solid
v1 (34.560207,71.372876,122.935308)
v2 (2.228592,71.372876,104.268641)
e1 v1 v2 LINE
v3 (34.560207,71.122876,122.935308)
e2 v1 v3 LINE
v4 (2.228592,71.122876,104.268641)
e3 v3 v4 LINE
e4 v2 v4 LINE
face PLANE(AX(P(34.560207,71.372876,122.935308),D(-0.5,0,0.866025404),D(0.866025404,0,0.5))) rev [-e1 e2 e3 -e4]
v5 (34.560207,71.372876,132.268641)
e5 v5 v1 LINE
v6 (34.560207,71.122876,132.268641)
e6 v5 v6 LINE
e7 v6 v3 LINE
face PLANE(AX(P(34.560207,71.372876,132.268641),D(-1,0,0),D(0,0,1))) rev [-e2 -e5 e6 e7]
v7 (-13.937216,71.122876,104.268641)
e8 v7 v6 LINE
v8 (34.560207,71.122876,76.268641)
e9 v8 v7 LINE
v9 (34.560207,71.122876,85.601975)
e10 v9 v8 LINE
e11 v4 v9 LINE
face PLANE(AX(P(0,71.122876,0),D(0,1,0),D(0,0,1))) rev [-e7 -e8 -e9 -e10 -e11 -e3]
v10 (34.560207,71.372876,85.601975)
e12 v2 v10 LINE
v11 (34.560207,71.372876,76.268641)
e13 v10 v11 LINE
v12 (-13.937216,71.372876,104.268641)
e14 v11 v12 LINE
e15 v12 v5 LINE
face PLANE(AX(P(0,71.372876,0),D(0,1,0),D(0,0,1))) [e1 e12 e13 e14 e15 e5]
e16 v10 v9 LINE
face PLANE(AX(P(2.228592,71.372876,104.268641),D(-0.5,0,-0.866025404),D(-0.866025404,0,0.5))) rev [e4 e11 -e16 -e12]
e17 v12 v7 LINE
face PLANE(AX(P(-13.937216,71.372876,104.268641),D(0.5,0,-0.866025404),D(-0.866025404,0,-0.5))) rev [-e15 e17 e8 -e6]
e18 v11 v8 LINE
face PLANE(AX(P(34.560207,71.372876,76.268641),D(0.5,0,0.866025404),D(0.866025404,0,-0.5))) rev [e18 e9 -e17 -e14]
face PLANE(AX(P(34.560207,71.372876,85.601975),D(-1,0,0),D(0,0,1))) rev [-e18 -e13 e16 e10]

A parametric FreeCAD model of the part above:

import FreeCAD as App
import Part
import Sketcher
Q = App.Units.Quantity

doc = App.newDocument("Part")
params = doc.addObject("Spreadsheet::Sheet", "Params")
for row, (alias, value) in enumerate([
    ("sketch1_length", "56 mm"),
    ("pad1_length", "0.25 mm"),
], start=1):
    params.set(f"A{row}", alias)
    params.set(f"B{row}", "=" + value)
    params.setAlias(f"B{row}", alias)

body = doc.addObject("PartDesign::Body", "Body")

sketch1 = doc.addObject("Sketcher::SketchObject", "Sketch")
body.addObject(sketch1)
sketch1.AttachmentSupport = (doc.XZ_Plane, [""])
sketch1.MapMode = "FlatFace"
sketch1.AttachmentOffset = App.Placement(App.Vector(0, 0, -71.122876), App.Rotation())
sketch1.addGeometry([
    Part.LineSegment(App.Vector(34.560207, 76.268641, 0), App.Vector(-13.937216, 104.268641, 0)),
    Part.LineSegment(App.Vector(-13.937216, 104.268641, 0), App.Vector(34.560207, 132.268641, 0)),
    Part.LineSegment(App.Vector(34.560207, 132.268641, 0), App.Vector(34.560207, 122.935308, 0)),
    Part.LineSegment(App.Vector(34.560207, 122.935308, 0), App.Vector(2.228592, 104.268641, 0)),
    Part.LineSegment(App.Vector(2.228592, 104.268641, 0), App.Vector(34.560207, 85.601975, 0)),
    Part.LineSegment(App.Vector(34.560207, 85.601975, 0), App.Vector(34.560207, 76.268641, 0)),
], False)
sketch1.addConstraint([
    Sketcher.Constraint("Coincident", 0, 2, 1, 1),
    Sketcher.Constraint("Coincident", 1, 2, 2, 1),
    Sketcher.Constraint("Coincident", 2, 2, 3, 1),
    Sketcher.Constraint("Coincident", 3, 2, 4, 1),
    Sketcher.Constraint("Coincident", 4, 2, 5, 1),
    Sketcher.Constraint("Coincident", 5, 2, 0, 1),
    Sketcher.Constraint("Vertical", 2),
    Sketcher.Constraint("Vertical", 5),
    Sketcher.Constraint("Parallel", 1, 3),
    Sketcher.Constraint("Parallel", 0, 4),
    Sketcher.Constraint("Horizontal", 0, 2, 3, 2),
    Sketcher.Constraint("Vertical", 2, 2, 4, 2),
    Sketcher.Constraint("Equal", 2, 5),
    Sketcher.Constraint("Angle", 0, Q("150 deg")),
    Sketcher.Constraint("Distance", 0, Q("56 mm")),
    Sketcher.Constraint("DistanceY", 2, 2, 2, 1, Q("9.333333 mm")),
    Sketcher.Constraint("DistanceY", -1, 1, 0, 2, Q("104.268641 mm")),
    Sketcher.Constraint("DistanceX", -1, 1, 3, 2, Q("2.228592 mm")),
])
sketch1.setExpression("Constraints[14]", "Params.sketch1_length")
pad1 = doc.addObject("PartDesign::Pad", "Pad")
body.addObject(pad1)
pad1.Profile = sketch1
pad1.setExpression("Length", "Params.pad1_length")
pad1.Reversed = True

doc.recompute()
